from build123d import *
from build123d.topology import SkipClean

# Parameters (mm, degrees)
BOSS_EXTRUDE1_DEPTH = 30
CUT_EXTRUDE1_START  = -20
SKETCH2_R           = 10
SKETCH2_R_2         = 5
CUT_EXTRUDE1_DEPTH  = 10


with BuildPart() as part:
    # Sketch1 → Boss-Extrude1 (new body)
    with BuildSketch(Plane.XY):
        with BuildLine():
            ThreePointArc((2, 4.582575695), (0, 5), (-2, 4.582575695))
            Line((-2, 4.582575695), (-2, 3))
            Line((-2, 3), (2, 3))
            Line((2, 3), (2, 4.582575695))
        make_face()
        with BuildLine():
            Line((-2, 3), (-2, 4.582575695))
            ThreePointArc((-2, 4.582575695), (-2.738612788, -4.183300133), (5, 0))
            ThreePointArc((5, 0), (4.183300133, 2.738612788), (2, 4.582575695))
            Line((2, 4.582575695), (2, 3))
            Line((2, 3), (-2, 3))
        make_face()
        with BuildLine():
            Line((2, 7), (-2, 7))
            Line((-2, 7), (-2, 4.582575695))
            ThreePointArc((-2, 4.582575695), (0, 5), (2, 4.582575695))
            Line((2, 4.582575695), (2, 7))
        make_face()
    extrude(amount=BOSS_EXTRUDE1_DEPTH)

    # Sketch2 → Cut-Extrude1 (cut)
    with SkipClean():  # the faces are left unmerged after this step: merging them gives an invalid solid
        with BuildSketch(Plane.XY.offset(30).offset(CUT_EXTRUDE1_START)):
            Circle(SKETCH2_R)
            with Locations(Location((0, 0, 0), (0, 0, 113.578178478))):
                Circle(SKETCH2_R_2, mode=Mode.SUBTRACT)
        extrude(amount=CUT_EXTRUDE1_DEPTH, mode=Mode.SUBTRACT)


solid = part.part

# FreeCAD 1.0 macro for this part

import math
import FreeCAD as App
import Part
import Sketcher
from FreeCAD import Vector
Q = App.Units.Quantity

doc = App.newDocument("Part")
body = doc.addObject("PartDesign::Body", "Body")

sketch1 = doc.addObject("Sketcher::SketchObject", "Sketch")
body.addObject(sketch1)
sketch1.AttachmentSupport = (doc.XY_Plane, [""])
sketch1.MapMode = "FlatFace"
sketch1.addGeometry([
    Part.ArcOfCircle(Part.Circle(Vector(0, 0, 0), Vector(0, 0, 1), 5), math.radians(114), math.radians(360)),
    Part.ArcOfCircle(Part.Circle(Vector(0, 0, 0), Vector(0, 0, 1), 5), math.radians(0), math.radians(66)),
    Part.LineSegment(Vector(2, 4.6, 0), Vector(2, 7, 0)),
    Part.LineSegment(Vector(2, 7, 0), Vector(-2, 7, 0)),
    Part.LineSegment(Vector(-2, 7, 0), Vector(-2, 4.6, 0)),
], False)
sketch1.addConstraint([
    Sketcher.Constraint("Tangent", 0, 2, 1, 1),
    Sketcher.Constraint("Coincident", 1, 2, 2, 1),
    Sketcher.Constraint("Coincident", 2, 2, 3, 1),
    Sketcher.Constraint("Coincident", 3, 2, 4, 1),
    Sketcher.Constraint("Coincident", 4, 2, 0, 1),
    Sketcher.Constraint("Vertical", 2),
    Sketcher.Constraint("Horizontal", 3),
    Sketcher.Constraint("Vertical", 4),
    Sketcher.Constraint("Coincident", 0, 3, -1, 1),
    Sketcher.Constraint("Equal", 0, 1),
    Sketcher.Constraint("PointOnObject", 0, 2, -1),
    Sketcher.Constraint("Horizontal", 1, 2, 4, 2),
    Sketcher.Constraint("Radius", 0, Q("5 mm")),
    Sketcher.Constraint("DistanceX", 3, 2, 3, 1, Q("4 mm")),
    Sketcher.Constraint("DistanceY", -1, 1, 2, 2, Q("7 mm")),
])
pad1 = doc.addObject("PartDesign::Pad", "Pad")
body.addObject(pad1)
pad1.Profile = sketch1
pad1.Length = 30

sketch2 = doc.addObject("Sketcher::SketchObject", "Sketch001")
body.addObject(sketch2)
sketch2.AttachmentSupport = (doc.XY_Plane, [""])
sketch2.MapMode = "FlatFace"
sketch2.AttachmentOffset = App.Placement(Vector(0, 0, 10), App.Rotation())
sketch2.addGeometry([
    Part.Circle(Vector(0, 0, 0), Vector(0, 0, 1), 10),
    Part.Circle(Vector(0, 0, 0), Vector(0, 0, 1), 5),
], False)
sketch2.addConstraint([
    Sketcher.Constraint("Coincident", 0, 3, -1, 1),
    Sketcher.Constraint("Coincident", 1, 3, -1, 1),
    Sketcher.Constraint("Diameter", 0, Q("20 mm")),
    Sketcher.Constraint("Diameter", 1, Q("10 mm")),
])
pocket1 = doc.addObject("PartDesign::Pocket", "Pocket")
body.addObject(pocket1)
pocket1.Profile = sketch2
pocket1.Length = 10
pocket1.Reversed = True

doc.recompute()
